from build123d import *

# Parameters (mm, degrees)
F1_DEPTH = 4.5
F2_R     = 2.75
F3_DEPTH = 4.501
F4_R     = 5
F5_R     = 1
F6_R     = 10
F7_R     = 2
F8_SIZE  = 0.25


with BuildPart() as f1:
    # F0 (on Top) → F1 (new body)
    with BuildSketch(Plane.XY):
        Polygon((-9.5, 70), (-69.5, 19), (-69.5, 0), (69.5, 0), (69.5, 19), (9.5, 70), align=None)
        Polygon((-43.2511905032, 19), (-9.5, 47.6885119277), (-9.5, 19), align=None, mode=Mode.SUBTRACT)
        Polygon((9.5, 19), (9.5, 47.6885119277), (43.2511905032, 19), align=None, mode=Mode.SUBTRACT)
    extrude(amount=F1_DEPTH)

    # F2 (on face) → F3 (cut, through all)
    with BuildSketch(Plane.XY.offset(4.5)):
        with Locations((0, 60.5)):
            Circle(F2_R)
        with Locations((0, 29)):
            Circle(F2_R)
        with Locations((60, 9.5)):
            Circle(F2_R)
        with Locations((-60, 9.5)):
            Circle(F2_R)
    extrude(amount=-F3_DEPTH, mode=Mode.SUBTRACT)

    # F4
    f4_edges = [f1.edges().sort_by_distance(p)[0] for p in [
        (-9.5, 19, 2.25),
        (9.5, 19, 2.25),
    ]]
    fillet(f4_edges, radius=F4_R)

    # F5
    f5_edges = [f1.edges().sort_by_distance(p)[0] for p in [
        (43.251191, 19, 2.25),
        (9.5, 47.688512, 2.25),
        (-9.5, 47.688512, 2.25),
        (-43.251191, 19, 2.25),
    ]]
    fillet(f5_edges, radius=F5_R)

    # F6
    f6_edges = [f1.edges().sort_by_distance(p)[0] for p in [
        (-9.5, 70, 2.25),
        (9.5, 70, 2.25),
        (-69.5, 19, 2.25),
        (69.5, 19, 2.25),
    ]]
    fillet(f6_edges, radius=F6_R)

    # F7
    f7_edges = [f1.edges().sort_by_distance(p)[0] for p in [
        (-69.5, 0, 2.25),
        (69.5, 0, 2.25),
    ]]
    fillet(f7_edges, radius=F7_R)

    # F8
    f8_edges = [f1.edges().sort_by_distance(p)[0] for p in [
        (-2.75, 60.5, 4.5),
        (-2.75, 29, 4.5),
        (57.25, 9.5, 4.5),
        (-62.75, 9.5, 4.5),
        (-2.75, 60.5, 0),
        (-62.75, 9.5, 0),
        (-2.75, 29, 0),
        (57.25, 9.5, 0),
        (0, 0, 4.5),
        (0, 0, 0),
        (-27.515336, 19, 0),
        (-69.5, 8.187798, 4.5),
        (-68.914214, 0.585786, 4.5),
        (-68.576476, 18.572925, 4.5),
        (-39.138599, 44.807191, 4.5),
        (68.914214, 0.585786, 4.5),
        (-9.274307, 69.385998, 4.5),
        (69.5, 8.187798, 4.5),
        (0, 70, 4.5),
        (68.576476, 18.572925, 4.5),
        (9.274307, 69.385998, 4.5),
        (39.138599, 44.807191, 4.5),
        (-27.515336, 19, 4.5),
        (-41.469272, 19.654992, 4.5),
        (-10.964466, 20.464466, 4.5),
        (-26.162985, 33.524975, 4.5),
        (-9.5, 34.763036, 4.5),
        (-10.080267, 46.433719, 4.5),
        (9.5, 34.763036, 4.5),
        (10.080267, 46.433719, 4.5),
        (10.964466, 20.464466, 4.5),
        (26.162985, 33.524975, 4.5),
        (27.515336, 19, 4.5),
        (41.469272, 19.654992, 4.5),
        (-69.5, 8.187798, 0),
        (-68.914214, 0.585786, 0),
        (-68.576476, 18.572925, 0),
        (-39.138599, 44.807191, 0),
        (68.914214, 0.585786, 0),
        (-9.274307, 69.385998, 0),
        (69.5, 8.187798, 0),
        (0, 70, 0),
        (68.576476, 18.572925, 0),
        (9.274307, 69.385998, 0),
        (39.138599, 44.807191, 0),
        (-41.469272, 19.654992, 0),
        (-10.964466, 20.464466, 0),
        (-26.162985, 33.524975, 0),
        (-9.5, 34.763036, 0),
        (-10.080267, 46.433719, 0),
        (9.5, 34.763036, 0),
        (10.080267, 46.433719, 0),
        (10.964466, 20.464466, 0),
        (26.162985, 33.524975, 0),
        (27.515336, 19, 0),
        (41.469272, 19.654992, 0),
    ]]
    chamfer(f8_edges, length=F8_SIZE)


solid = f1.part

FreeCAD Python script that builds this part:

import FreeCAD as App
import Part
import Sketcher

V = App.Vector
Q = App.Units.Quantity


def edges_at(feature, points):
    """Names of the edges that pass closest to the given points."""
    edges = feature.Shape.Edges
    near = lambda p: min(range(len(edges)), key=lambda i: edges[i].distToShape(Part.Vertex(*p))[0])
    return sorted({f"Edge{near(p) + 1}" for p in points})

doc = App.newDocument("Part")
body = doc.addObject("PartDesign::Body", "Body")

# Sketch on XY plane
sketch1 = body.newObject("Sketcher::SketchObject", "Sketch")
sketch1.AttachmentSupport = (doc.getObject("XY_Plane"), [""])
sketch1.MapMode = "FlatFace"
sketch1.addGeometry(Part.LineSegment(V(-10, 70, 0), V(-70, 19, 0)), False)
sketch1.addGeometry(Part.LineSegment(V(-70, 19, 0), V(-70, 0, 0)), False)
sketch1.addGeometry(Part.LineSegment(V(-70, 0, 0), V(70, 0, 0)), False)
sketch1.addGeometry(Part.LineSegment(V(70, 0, 0), V(70, 19, 0)), False)
sketch1.addGeometry(Part.LineSegment(V(70, 19, 0), V(10, 70, 0)), False)
sketch1.addGeometry(Part.LineSegment(V(10, 70, 0), V(-10, 70, 0)), False)
sketch1.addGeometry(Part.LineSegment(V(43, 19, 0), V(10, 19, 0)), False)
sketch1.addGeometry(Part.LineSegment(V(10, 19, 0), V(10, 48, 0)), False)
sketch1.addGeometry(Part.LineSegment(V(10, 48, 0), V(43, 19, 0)), False)
sketch1.addGeometry(Part.LineSegment(V(-10, 19, 0), V(-43, 19, 0)), False)
sketch1.addGeometry(Part.LineSegment(V(-43, 19, 0), V(-10, 48, 0)), False)
sketch1.addGeometry(Part.LineSegment(V(-10, 48, 0), V(-10, 19, 0)), False)
sketch1.addConstraint(Sketcher.Constraint("Coincident", 0, 2, 1, 1))
sketch1.addConstraint(Sketcher.Constraint("Coincident", 1, 2, 2, 1))
sketch1.addConstraint(Sketcher.Constraint("Coincident", 2, 2, 3, 1))
sketch1.addConstraint(Sketcher.Constraint("Coincident", 3, 2, 4, 1))
sketch1.addConstraint(Sketcher.Constraint("Coincident", 4, 2, 5, 1))
sketch1.addConstraint(Sketcher.Constraint("Coincident", 5, 2, 0, 1))
sketch1.addConstraint(Sketcher.Constraint("Coincident", 6, 2, 7, 1))
sketch1.addConstraint(Sketcher.Constraint("Coincident", 7, 2, 8, 1))
sketch1.addConstraint(Sketcher.Constraint("Coincident", 8, 2, 6, 1))
sketch1.addConstraint(Sketcher.Constraint("Coincident", 9, 2, 10, 1))
sketch1.addConstraint(Sketcher.Constraint("Coincident", 10, 2, 11, 1))
sketch1.addConstraint(Sketcher.Constraint("Coincident", 11, 2, 9, 1))
sketch1.addConstraint(Sketcher.Constraint("Vertical", 1))
sketch1.addConstraint(Sketcher.Constraint("Horizontal", 2))
sketch1.addConstraint(Sketcher.Constraint("Vertical", 3))
sketch1.addConstraint(Sketcher.Constraint("Horizontal", 5))
sketch1.addConstraint(Sketcher.Constraint("Horizontal", 6))
sketch1.addConstraint(Sketcher.Constraint("Vertical", 7))
sketch1.addConstraint(Sketcher.Constraint("Horizontal", 9))
sketch1.addConstraint(Sketcher.Constraint("Vertical", 11))
sketch1.addConstraint(Sketcher.Constraint("Symmetric", 1, 2, 2, 2, -1, 1))
sketch1.addConstraint(Sketcher.Constraint("Symmetric", 8, 2, 9, 2, -2))
sketch1.addConstraint(Sketcher.Constraint("Symmetric", 7, 2, 10, 2, -2))
sketch1.addConstraint(Sketcher.Constraint("Parallel", 4, 8))
sketch1.addConstraint(Sketcher.Constraint("Parallel", 0, 10))
sketch1.addConstraint(Sketcher.Constraint("Horizontal", 0, 2, 3, 2))
sketch1.addConstraint(Sketcher.Constraint("Horizontal", 3, 2, 6, 2))
sketch1.addConstraint(Sketcher.Constraint("Vertical", 4, 2, 6, 2))
sketch1.addConstraint(Sketcher.Constraint("Equal", 5, 1))
sketch1.addConstraint(Sketcher.Constraint("DistanceX", 2, 1, 2, 2, Q("139 mm")))
sketch1.addConstraint(Sketcher.Constraint("DistanceX", 5, 2, 5, 1, Q("19 mm")))
sketch1.addConstraint(Sketcher.Constraint("DistanceY", -1, 1, 4, 2, Q("70 mm")))
sketch1.addConstraint(Sketcher.Constraint("DistanceX", 6, 2, 6, 1, Q("33.751191 mm")))
pad1 = body.newObject("PartDesign::Pad", "Pad")
pad1.Profile = sketch1
pad1.Length = 4.5

# Sketch on XY plane
sketch2 = body.newObject("Sketcher::SketchObject", "Sketch001")
sketch2.AttachmentSupport = (doc.getObject("XY_Plane"), [""])
sketch2.MapMode = "FlatFace"
sketch2.AttachmentOffset = App.Placement(V(0, 0, 4.5), App.Rotation())
sketch2.addGeometry(Part.Circle(V(0, 60.5, 0), V(0, 0, 1), 2.8), False)
sketch2.addGeometry(Part.Circle(V(0, 29, 0), V(0, 0, 1), 2.8), False)
sketch2.addGeometry(Part.Circle(V(60, 9.5, 0), V(0, 0, 1), 2.8), False)
sketch2.addGeometry(Part.Circle(V(-60, 9.5, 0), V(0, 0, 1), 2.8), False)
sketch2.addConstraint(Sketcher.Constraint("Equal", 0, 1))
sketch2.addConstraint(Sketcher.Constraint("Equal", 1, 2))
sketch2.addConstraint(Sketcher.Constraint("Equal", 2, 3))
sketch2.addConstraint(Sketcher.Constraint("Symmetric", 2, 3, 3, 3, -2))
sketch2.addConstraint(Sketcher.Constraint("PointOnObject", 0, 3, -2))
sketch2.addConstraint(Sketcher.Constraint("PointOnObject", 1, 3, -2))
sketch2.addConstraint(Sketcher.Constraint("Diameter", 0, Q("5.5 mm")))
sketch2.addConstraint(Sketcher.Constraint("DistanceY", -1, 1, 1, 3, Q("29 mm")))
sketch2.addConstraint(Sketcher.Constraint("DistanceX", -1, 1, 2, 3, Q("60 mm")))
sketch2.addConstraint(Sketcher.Constraint("DistanceY", 2, 3, 0, 3, Q("51 mm")))
sketch2.addConstraint(Sketcher.Constraint("DistanceY", -1, 1, 0, 3, Q("60.5 mm")))
pocket1 = body.newObject("PartDesign::Pocket", "Pocket")
pocket1.Profile = sketch2
pocket1.Type = "ThroughAll"
doc.recompute()

fillet = body.newObject("PartDesign::Fillet", "Fillet")
fillet.Base = (pocket1, edges_at(pocket1, [(-9.5, 19, 2.25), (9.5, 19, 2.25)]))
fillet.Radius = 5
doc.recompute()

fillet2 = body.newObject("PartDesign::Fillet", "Fillet001")
fillet2.Base = (fillet, edges_at(fillet, [
    (43.251, 19, 2.25),
    (9.5, 47.689, 2.25),
    (-9.5, 47.689, 2.25),
    (-43.251, 19, 2.25),
]))
fillet2.Radius = 1
doc.recompute()

fillet3 = body.newObject("PartDesign::Fillet", "Fillet002")
fillet3.Base = (fillet2, edges_at(fillet2, [
    (-9.5, 70, 2.25),
    (9.5, 70, 2.25),
    (-69.5, 19, 2.25),
    (69.5, 19, 2.25),
]))
fillet3.Radius = 10
doc.recompute()

fillet4 = body.newObject("PartDesign::Fillet", "Fillet003")
fillet4.Base = (fillet3, edges_at(fillet3, [(-69.5, 0, 2.25), (69.5, 0, 2.25)]))
fillet4.Radius = 2
doc.recompute()

chamfer = body.newObject("PartDesign::Chamfer", "Chamfer")
chamfer.Base = (fillet4, edges_at(fillet4, [
    (-2.75, 60.5, 4.5),
    (-2.75, 29, 4.5),
    (57.25, 9.5, 4.5),
    (-62.75, 9.5, 4.5),
    (-2.75, 60.5, 0),
    (-62.75, 9.5, 0),
    (-2.75, 29, 0),
    (57.25, 9.5, 0),
    (0, 0, 4.5),
    (0, 0, 0),
    (-27.515, 19, 0),
    (-69.5, 8.188, 4.5),
    (-68.914, 0.586, 4.5),
    (-68.576, 18.573, 4.5),
    (-39.139, 44.807, 4.5),
    (68.914, 0.586, 4.5),
    (-9.274, 69.386, 4.5),
    (69.5, 8.188, 4.5),
    (0, 70, 4.5),
    (68.576, 18.573, 4.5),
    (9.274, 69.386, 4.5),
    (39.139, 44.807, 4.5),
    (-27.515, 19, 4.5),
    (-41.469, 19.655, 4.5),
    (-10.964, 20.464, 4.5),
    (-26.163, 33.525, 4.5),
    (-9.5, 34.763, 4.5),
    (-10.08, 46.434, 4.5),
    (9.5, 34.763, 4.5),
    (10.08, 46.434, 4.5),
    (10.964, 20.464, 4.5),
    (26.163, 33.525, 4.5),
    (27.515, 19, 4.5),
    (41.469, 19.655, 4.5),
    (-69.5, 8.188, 0),
    (-68.914, 0.586, 0),
    (-68.576, 18.573, 0),
    (-39.139, 44.807, 0),
    (68.914, 0.586, 0),
    (-9.274, 69.386, 0),
    (69.5, 8.188, 0),
    (0, 70, 0),
    (68.576, 18.573, 0),
    (9.274, 69.386, 0),
    (39.139, 44.807, 0),
    (-41.469, 19.655, 0),
    (-10.964, 20.464, 0),
    (-26.163, 33.525, 0),
    (-9.5, 34.763, 0),
    (-10.08, 46.434, 0),
    (9.5, 34.763, 0),
    (10.08, 46.434, 0),
    (10.964, 20.464, 0),
    (26.163, 33.525, 0),
    (27.515, 19, 0),
    (41.469, 19.655, 0),
]))
chamfer.Size = 0.25

doc.recompute()
